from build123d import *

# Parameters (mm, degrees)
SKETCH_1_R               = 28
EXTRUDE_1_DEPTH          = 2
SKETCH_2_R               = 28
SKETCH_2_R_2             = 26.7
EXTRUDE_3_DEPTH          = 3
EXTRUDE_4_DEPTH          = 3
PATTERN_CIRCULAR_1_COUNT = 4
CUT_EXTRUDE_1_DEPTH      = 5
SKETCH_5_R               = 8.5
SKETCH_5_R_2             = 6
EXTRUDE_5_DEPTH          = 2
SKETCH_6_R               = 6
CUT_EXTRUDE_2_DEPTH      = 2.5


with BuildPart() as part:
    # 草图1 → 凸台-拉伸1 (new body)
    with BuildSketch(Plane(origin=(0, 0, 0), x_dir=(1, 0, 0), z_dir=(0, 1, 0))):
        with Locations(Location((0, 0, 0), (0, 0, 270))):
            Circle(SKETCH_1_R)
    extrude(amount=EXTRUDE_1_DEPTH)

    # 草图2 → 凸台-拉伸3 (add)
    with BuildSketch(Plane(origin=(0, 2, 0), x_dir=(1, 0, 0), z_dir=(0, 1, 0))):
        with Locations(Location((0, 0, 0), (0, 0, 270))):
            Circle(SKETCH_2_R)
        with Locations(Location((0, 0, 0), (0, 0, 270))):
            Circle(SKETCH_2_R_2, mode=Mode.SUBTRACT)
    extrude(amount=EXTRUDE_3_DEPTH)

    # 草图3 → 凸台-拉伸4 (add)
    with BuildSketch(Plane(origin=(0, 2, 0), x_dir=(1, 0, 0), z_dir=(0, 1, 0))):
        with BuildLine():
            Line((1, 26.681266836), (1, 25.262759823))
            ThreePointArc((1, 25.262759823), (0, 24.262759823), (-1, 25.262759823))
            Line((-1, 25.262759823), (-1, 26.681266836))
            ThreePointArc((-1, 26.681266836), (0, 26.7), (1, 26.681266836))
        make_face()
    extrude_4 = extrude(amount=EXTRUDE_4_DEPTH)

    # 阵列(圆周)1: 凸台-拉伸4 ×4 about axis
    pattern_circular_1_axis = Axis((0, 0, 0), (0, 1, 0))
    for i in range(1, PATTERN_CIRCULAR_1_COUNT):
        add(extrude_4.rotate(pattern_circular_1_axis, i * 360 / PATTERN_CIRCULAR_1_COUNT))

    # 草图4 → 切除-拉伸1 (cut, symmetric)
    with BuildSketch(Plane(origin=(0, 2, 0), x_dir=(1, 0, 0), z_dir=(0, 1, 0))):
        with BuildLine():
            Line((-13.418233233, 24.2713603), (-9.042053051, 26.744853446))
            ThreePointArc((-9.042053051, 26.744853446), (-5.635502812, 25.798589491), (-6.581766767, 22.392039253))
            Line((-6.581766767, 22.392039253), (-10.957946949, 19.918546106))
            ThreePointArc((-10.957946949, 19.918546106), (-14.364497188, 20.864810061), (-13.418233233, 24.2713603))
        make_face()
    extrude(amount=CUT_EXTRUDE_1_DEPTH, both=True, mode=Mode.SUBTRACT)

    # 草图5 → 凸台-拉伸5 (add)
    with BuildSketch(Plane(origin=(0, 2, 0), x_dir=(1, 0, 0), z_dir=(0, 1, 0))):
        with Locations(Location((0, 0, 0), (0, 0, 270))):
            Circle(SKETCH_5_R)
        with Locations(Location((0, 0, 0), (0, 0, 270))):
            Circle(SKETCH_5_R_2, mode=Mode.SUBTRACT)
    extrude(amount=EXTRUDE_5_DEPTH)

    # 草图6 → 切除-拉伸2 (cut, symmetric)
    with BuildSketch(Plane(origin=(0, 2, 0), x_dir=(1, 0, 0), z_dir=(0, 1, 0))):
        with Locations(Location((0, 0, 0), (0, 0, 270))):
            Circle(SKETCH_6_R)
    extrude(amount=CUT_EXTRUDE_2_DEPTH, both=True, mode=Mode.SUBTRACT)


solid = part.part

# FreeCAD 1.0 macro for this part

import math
import FreeCAD as App
import Part
import Sketcher

doc = App.newDocument("Part")
body = doc.addObject("PartDesign::Body", "Body")

# Sketch on XZ plane
sketch1 = body.newObject("Sketcher::SketchObject", "Sketch")
sketch1.AttachmentSupport = (doc.getObject("XZ_Plane"), [""])
sketch1.MapMode = "FlatFace"
sketch1.addGeometry(Part.Circle(App.Vector(0, 0, 0), App.Vector(0, 0, 1), 28), False)
sketch1.addConstraint([
    Sketcher.Constraint("Coincident", 0, 3, -1, 1),
    Sketcher.Constraint("Diameter", 0, 56.0),
])
pad1 = body.newObject("PartDesign::Pad", "Pad")
pad1.Profile = sketch1
pad1.Length = 2
pad1.Reversed = True

# Sketch on XZ plane
sketch2 = body.newObject("Sketcher::SketchObject", "Sketch001")
sketch2.AttachmentSupport = (doc.getObject("XZ_Plane"), [""])
sketch2.MapMode = "FlatFace"
sketch2.AttachmentOffset = App.Placement(App.Vector(0, 0, -2), App.Rotation())
sketch2.addGeometry([
    Part.Circle(App.Vector(0, 0, 0), App.Vector(0, 0, 1), 28),
    Part.Circle(App.Vector(0, 0, 0), App.Vector(0, 0, 1), 27),
], False)
sketch2.addConstraint([
    Sketcher.Constraint("Coincident", 0, 3, -1, 1),
    Sketcher.Constraint("Coincident", 1, 3, -1, 1),
    Sketcher.Constraint("Diameter", 0, 56.0),
    Sketcher.Constraint("Diameter", 1, 53.4),
])
pad2 = body.newObject("PartDesign::Pad", "Pad001")
pad2.Profile = sketch2
pad2.Length = 3
pad2.Reversed = True

# Sketch on XZ plane
sketch3 = body.newObject("Sketcher::SketchObject", "Sketch002")
sketch3.AttachmentSupport = (doc.getObject("XZ_Plane"), [""])
sketch3.MapMode = "FlatFace"
sketch3.AttachmentOffset = App.Placement(App.Vector(0, 0, -2), App.Rotation())
sketch3.addGeometry([
    Part.LineSegment(App.Vector(1, -25.3, 0), App.Vector(1, -26.7, 0)),
    Part.ArcOfCircle(Part.Circle(App.Vector(0, 0, 0), App.Vector(0, 0, 1), 26.7), math.radians(-92.15), math.radians(-87.85)),
    Part.LineSegment(App.Vector(-1, -26.7, 0), App.Vector(-1, -25.3, 0)),
    Part.ArcOfCircle(Part.Circle(App.Vector(0, -25.3, 0), App.Vector(0, 0, 1), 1), math.radians(0), math.radians(180)),
], False)
sketch3.addConstraint([
    Sketcher.Constraint("Coincident", 0, 2, 1, 2),
    Sketcher.Constraint("Coincident", 1, 1, 2, 1),
    Sketcher.Constraint("Tangent", 2, 2, 3, 2),
    Sketcher.Constraint("Tangent", 3, 1, 0, 1),
    Sketcher.Constraint("Vertical", 0),
    Sketcher.Constraint("Vertical", 2),
    Sketcher.Constraint("Coincident", 1, 3, -1, 1),
    Sketcher.Constraint("PointOnObject", 3, 3, -2),
    Sketcher.Constraint("Radius", 3, 1.0),
    Sketcher.Constraint("Radius", 1, 26.699999),
    Sketcher.Constraint("DistanceY", 0, 2, 0, 1, 1.418507),
])
pad3 = body.newObject("PartDesign::Pad", "Pad002")
pad3.Profile = sketch3
pad3.Length = 3
pad3.Reversed = True
doc.recompute()

polarpattern = body.newObject("PartDesign::PolarPattern", "PolarPattern")
polarpattern.Originals = [pad3]
polarpattern.Axis = (doc.getObject("Y_Axis"), [""])
polarpattern.Angle = 360
polarpattern.Occurrences = 4
body.Tip = polarpattern

# Sketch on XZ plane
sketch4 = body.newObject("Sketcher::SketchObject", "Sketch003")
sketch4.AttachmentSupport = (doc.getObject("XZ_Plane"), [""])
sketch4.MapMode = "FlatFace"
sketch4.AttachmentOffset = App.Placement(App.Vector(0, 0, -2), App.Rotation())
sketch4.addGeometry([
    Part.LineSegment(App.Vector(-9, -26.7, 0), App.Vector(-13.4, -24.3, 0)),
    Part.ArcOfCircle(Part.Circle(App.Vector(-12.2, -22.1, 0), App.Vector(0, 0, 1), 2.5), math.radians(61), math.radians(241)),
    Part.LineSegment(App.Vector(-11, -19.9, 0), App.Vector(-6.6, -22.4, 0)),
    Part.ArcOfCircle(Part.Circle(App.Vector(-7.8, -24.6, 0), App.Vector(0, 0, 1), 2.5), math.radians(-119), math.radians(61)),
], False)
sketch4.addConstraint([
    Sketcher.Constraint("Tangent", 0, 2, 1, 2),
    Sketcher.Constraint("Tangent", 1, 1, 2, 1),
    Sketcher.Constraint("Tangent", 2, 2, 3, 2),
    Sketcher.Constraint("Tangent", 3, 1, 0, 1),
    Sketcher.Constraint("Equal", 1, 3),
    Sketcher.Constraint("Radius", 1, 2.5),
    Sketcher.Constraint("DistanceY", 3, 3, 1, 1, 4.6499),
    Sketcher.Constraint("Distance", 0, 5.02684),
    Sketcher.Constraint("DistanceX", 1, 3, -1, 1, 12.18809),
    Sketcher.Constraint("DistanceY", 0, 2, -1, 1, 24.27136),
])
pocket1 = body.newObject("PartDesign::Pocket", "Pocket")
pocket1.Profile = sketch4
pocket1.Length = 10
pocket1.Midplane = True

# Sketch on XZ plane
sketch5 = body.newObject("Sketcher::SketchObject", "Sketch004")
sketch5.AttachmentSupport = (doc.getObject("XZ_Plane"), [""])
sketch5.MapMode = "FlatFace"
sketch5.AttachmentOffset = App.Placement(App.Vector(0, 0, -2), App.Rotation())
sketch5.addGeometry([
    Part.Circle(App.Vector(0, 0, 0), App.Vector(0, 0, 1), 8),
    Part.Circle(App.Vector(0, 0, 0), App.Vector(0, 0, 1), 6),
], False)
sketch5.addConstraint([
    Sketcher.Constraint("Coincident", 0, 3, -1, 1),
    Sketcher.Constraint("Coincident", 1, 3, -1, 1),
    Sketcher.Constraint("Diameter", 0, 17.0),
    Sketcher.Constraint("Diameter", 1, 12.0),
])
pad4 = body.newObject("PartDesign::Pad", "Pad003")
pad4.Profile = sketch5
pad4.Length = 2
pad4.Reversed = True

# Sketch on XZ plane
sketch6 = body.newObject("Sketcher::SketchObject", "Sketch005")
sketch6.AttachmentSupport = (doc.getObject("XZ_Plane"), [""])
sketch6.MapMode = "FlatFace"
sketch6.AttachmentOffset = App.Placement(App.Vector(0, 0, -2), App.Rotation())
sketch6.addGeometry(Part.Circle(App.Vector(0, 0, 0), App.Vector(0, 0, 1), 6), False)
sketch6.addConstraint([
    Sketcher.Constraint("Coincident", 0, 3, -1, 1),
    Sketcher.Constraint("Diameter", 0, 12.0),
])
pocket2 = body.newObject("PartDesign::Pocket", "Pocket001")
pocket2.Profile = sketch6
pocket2.Length = 5
pocket2.Midplane = True

doc.recompute()
